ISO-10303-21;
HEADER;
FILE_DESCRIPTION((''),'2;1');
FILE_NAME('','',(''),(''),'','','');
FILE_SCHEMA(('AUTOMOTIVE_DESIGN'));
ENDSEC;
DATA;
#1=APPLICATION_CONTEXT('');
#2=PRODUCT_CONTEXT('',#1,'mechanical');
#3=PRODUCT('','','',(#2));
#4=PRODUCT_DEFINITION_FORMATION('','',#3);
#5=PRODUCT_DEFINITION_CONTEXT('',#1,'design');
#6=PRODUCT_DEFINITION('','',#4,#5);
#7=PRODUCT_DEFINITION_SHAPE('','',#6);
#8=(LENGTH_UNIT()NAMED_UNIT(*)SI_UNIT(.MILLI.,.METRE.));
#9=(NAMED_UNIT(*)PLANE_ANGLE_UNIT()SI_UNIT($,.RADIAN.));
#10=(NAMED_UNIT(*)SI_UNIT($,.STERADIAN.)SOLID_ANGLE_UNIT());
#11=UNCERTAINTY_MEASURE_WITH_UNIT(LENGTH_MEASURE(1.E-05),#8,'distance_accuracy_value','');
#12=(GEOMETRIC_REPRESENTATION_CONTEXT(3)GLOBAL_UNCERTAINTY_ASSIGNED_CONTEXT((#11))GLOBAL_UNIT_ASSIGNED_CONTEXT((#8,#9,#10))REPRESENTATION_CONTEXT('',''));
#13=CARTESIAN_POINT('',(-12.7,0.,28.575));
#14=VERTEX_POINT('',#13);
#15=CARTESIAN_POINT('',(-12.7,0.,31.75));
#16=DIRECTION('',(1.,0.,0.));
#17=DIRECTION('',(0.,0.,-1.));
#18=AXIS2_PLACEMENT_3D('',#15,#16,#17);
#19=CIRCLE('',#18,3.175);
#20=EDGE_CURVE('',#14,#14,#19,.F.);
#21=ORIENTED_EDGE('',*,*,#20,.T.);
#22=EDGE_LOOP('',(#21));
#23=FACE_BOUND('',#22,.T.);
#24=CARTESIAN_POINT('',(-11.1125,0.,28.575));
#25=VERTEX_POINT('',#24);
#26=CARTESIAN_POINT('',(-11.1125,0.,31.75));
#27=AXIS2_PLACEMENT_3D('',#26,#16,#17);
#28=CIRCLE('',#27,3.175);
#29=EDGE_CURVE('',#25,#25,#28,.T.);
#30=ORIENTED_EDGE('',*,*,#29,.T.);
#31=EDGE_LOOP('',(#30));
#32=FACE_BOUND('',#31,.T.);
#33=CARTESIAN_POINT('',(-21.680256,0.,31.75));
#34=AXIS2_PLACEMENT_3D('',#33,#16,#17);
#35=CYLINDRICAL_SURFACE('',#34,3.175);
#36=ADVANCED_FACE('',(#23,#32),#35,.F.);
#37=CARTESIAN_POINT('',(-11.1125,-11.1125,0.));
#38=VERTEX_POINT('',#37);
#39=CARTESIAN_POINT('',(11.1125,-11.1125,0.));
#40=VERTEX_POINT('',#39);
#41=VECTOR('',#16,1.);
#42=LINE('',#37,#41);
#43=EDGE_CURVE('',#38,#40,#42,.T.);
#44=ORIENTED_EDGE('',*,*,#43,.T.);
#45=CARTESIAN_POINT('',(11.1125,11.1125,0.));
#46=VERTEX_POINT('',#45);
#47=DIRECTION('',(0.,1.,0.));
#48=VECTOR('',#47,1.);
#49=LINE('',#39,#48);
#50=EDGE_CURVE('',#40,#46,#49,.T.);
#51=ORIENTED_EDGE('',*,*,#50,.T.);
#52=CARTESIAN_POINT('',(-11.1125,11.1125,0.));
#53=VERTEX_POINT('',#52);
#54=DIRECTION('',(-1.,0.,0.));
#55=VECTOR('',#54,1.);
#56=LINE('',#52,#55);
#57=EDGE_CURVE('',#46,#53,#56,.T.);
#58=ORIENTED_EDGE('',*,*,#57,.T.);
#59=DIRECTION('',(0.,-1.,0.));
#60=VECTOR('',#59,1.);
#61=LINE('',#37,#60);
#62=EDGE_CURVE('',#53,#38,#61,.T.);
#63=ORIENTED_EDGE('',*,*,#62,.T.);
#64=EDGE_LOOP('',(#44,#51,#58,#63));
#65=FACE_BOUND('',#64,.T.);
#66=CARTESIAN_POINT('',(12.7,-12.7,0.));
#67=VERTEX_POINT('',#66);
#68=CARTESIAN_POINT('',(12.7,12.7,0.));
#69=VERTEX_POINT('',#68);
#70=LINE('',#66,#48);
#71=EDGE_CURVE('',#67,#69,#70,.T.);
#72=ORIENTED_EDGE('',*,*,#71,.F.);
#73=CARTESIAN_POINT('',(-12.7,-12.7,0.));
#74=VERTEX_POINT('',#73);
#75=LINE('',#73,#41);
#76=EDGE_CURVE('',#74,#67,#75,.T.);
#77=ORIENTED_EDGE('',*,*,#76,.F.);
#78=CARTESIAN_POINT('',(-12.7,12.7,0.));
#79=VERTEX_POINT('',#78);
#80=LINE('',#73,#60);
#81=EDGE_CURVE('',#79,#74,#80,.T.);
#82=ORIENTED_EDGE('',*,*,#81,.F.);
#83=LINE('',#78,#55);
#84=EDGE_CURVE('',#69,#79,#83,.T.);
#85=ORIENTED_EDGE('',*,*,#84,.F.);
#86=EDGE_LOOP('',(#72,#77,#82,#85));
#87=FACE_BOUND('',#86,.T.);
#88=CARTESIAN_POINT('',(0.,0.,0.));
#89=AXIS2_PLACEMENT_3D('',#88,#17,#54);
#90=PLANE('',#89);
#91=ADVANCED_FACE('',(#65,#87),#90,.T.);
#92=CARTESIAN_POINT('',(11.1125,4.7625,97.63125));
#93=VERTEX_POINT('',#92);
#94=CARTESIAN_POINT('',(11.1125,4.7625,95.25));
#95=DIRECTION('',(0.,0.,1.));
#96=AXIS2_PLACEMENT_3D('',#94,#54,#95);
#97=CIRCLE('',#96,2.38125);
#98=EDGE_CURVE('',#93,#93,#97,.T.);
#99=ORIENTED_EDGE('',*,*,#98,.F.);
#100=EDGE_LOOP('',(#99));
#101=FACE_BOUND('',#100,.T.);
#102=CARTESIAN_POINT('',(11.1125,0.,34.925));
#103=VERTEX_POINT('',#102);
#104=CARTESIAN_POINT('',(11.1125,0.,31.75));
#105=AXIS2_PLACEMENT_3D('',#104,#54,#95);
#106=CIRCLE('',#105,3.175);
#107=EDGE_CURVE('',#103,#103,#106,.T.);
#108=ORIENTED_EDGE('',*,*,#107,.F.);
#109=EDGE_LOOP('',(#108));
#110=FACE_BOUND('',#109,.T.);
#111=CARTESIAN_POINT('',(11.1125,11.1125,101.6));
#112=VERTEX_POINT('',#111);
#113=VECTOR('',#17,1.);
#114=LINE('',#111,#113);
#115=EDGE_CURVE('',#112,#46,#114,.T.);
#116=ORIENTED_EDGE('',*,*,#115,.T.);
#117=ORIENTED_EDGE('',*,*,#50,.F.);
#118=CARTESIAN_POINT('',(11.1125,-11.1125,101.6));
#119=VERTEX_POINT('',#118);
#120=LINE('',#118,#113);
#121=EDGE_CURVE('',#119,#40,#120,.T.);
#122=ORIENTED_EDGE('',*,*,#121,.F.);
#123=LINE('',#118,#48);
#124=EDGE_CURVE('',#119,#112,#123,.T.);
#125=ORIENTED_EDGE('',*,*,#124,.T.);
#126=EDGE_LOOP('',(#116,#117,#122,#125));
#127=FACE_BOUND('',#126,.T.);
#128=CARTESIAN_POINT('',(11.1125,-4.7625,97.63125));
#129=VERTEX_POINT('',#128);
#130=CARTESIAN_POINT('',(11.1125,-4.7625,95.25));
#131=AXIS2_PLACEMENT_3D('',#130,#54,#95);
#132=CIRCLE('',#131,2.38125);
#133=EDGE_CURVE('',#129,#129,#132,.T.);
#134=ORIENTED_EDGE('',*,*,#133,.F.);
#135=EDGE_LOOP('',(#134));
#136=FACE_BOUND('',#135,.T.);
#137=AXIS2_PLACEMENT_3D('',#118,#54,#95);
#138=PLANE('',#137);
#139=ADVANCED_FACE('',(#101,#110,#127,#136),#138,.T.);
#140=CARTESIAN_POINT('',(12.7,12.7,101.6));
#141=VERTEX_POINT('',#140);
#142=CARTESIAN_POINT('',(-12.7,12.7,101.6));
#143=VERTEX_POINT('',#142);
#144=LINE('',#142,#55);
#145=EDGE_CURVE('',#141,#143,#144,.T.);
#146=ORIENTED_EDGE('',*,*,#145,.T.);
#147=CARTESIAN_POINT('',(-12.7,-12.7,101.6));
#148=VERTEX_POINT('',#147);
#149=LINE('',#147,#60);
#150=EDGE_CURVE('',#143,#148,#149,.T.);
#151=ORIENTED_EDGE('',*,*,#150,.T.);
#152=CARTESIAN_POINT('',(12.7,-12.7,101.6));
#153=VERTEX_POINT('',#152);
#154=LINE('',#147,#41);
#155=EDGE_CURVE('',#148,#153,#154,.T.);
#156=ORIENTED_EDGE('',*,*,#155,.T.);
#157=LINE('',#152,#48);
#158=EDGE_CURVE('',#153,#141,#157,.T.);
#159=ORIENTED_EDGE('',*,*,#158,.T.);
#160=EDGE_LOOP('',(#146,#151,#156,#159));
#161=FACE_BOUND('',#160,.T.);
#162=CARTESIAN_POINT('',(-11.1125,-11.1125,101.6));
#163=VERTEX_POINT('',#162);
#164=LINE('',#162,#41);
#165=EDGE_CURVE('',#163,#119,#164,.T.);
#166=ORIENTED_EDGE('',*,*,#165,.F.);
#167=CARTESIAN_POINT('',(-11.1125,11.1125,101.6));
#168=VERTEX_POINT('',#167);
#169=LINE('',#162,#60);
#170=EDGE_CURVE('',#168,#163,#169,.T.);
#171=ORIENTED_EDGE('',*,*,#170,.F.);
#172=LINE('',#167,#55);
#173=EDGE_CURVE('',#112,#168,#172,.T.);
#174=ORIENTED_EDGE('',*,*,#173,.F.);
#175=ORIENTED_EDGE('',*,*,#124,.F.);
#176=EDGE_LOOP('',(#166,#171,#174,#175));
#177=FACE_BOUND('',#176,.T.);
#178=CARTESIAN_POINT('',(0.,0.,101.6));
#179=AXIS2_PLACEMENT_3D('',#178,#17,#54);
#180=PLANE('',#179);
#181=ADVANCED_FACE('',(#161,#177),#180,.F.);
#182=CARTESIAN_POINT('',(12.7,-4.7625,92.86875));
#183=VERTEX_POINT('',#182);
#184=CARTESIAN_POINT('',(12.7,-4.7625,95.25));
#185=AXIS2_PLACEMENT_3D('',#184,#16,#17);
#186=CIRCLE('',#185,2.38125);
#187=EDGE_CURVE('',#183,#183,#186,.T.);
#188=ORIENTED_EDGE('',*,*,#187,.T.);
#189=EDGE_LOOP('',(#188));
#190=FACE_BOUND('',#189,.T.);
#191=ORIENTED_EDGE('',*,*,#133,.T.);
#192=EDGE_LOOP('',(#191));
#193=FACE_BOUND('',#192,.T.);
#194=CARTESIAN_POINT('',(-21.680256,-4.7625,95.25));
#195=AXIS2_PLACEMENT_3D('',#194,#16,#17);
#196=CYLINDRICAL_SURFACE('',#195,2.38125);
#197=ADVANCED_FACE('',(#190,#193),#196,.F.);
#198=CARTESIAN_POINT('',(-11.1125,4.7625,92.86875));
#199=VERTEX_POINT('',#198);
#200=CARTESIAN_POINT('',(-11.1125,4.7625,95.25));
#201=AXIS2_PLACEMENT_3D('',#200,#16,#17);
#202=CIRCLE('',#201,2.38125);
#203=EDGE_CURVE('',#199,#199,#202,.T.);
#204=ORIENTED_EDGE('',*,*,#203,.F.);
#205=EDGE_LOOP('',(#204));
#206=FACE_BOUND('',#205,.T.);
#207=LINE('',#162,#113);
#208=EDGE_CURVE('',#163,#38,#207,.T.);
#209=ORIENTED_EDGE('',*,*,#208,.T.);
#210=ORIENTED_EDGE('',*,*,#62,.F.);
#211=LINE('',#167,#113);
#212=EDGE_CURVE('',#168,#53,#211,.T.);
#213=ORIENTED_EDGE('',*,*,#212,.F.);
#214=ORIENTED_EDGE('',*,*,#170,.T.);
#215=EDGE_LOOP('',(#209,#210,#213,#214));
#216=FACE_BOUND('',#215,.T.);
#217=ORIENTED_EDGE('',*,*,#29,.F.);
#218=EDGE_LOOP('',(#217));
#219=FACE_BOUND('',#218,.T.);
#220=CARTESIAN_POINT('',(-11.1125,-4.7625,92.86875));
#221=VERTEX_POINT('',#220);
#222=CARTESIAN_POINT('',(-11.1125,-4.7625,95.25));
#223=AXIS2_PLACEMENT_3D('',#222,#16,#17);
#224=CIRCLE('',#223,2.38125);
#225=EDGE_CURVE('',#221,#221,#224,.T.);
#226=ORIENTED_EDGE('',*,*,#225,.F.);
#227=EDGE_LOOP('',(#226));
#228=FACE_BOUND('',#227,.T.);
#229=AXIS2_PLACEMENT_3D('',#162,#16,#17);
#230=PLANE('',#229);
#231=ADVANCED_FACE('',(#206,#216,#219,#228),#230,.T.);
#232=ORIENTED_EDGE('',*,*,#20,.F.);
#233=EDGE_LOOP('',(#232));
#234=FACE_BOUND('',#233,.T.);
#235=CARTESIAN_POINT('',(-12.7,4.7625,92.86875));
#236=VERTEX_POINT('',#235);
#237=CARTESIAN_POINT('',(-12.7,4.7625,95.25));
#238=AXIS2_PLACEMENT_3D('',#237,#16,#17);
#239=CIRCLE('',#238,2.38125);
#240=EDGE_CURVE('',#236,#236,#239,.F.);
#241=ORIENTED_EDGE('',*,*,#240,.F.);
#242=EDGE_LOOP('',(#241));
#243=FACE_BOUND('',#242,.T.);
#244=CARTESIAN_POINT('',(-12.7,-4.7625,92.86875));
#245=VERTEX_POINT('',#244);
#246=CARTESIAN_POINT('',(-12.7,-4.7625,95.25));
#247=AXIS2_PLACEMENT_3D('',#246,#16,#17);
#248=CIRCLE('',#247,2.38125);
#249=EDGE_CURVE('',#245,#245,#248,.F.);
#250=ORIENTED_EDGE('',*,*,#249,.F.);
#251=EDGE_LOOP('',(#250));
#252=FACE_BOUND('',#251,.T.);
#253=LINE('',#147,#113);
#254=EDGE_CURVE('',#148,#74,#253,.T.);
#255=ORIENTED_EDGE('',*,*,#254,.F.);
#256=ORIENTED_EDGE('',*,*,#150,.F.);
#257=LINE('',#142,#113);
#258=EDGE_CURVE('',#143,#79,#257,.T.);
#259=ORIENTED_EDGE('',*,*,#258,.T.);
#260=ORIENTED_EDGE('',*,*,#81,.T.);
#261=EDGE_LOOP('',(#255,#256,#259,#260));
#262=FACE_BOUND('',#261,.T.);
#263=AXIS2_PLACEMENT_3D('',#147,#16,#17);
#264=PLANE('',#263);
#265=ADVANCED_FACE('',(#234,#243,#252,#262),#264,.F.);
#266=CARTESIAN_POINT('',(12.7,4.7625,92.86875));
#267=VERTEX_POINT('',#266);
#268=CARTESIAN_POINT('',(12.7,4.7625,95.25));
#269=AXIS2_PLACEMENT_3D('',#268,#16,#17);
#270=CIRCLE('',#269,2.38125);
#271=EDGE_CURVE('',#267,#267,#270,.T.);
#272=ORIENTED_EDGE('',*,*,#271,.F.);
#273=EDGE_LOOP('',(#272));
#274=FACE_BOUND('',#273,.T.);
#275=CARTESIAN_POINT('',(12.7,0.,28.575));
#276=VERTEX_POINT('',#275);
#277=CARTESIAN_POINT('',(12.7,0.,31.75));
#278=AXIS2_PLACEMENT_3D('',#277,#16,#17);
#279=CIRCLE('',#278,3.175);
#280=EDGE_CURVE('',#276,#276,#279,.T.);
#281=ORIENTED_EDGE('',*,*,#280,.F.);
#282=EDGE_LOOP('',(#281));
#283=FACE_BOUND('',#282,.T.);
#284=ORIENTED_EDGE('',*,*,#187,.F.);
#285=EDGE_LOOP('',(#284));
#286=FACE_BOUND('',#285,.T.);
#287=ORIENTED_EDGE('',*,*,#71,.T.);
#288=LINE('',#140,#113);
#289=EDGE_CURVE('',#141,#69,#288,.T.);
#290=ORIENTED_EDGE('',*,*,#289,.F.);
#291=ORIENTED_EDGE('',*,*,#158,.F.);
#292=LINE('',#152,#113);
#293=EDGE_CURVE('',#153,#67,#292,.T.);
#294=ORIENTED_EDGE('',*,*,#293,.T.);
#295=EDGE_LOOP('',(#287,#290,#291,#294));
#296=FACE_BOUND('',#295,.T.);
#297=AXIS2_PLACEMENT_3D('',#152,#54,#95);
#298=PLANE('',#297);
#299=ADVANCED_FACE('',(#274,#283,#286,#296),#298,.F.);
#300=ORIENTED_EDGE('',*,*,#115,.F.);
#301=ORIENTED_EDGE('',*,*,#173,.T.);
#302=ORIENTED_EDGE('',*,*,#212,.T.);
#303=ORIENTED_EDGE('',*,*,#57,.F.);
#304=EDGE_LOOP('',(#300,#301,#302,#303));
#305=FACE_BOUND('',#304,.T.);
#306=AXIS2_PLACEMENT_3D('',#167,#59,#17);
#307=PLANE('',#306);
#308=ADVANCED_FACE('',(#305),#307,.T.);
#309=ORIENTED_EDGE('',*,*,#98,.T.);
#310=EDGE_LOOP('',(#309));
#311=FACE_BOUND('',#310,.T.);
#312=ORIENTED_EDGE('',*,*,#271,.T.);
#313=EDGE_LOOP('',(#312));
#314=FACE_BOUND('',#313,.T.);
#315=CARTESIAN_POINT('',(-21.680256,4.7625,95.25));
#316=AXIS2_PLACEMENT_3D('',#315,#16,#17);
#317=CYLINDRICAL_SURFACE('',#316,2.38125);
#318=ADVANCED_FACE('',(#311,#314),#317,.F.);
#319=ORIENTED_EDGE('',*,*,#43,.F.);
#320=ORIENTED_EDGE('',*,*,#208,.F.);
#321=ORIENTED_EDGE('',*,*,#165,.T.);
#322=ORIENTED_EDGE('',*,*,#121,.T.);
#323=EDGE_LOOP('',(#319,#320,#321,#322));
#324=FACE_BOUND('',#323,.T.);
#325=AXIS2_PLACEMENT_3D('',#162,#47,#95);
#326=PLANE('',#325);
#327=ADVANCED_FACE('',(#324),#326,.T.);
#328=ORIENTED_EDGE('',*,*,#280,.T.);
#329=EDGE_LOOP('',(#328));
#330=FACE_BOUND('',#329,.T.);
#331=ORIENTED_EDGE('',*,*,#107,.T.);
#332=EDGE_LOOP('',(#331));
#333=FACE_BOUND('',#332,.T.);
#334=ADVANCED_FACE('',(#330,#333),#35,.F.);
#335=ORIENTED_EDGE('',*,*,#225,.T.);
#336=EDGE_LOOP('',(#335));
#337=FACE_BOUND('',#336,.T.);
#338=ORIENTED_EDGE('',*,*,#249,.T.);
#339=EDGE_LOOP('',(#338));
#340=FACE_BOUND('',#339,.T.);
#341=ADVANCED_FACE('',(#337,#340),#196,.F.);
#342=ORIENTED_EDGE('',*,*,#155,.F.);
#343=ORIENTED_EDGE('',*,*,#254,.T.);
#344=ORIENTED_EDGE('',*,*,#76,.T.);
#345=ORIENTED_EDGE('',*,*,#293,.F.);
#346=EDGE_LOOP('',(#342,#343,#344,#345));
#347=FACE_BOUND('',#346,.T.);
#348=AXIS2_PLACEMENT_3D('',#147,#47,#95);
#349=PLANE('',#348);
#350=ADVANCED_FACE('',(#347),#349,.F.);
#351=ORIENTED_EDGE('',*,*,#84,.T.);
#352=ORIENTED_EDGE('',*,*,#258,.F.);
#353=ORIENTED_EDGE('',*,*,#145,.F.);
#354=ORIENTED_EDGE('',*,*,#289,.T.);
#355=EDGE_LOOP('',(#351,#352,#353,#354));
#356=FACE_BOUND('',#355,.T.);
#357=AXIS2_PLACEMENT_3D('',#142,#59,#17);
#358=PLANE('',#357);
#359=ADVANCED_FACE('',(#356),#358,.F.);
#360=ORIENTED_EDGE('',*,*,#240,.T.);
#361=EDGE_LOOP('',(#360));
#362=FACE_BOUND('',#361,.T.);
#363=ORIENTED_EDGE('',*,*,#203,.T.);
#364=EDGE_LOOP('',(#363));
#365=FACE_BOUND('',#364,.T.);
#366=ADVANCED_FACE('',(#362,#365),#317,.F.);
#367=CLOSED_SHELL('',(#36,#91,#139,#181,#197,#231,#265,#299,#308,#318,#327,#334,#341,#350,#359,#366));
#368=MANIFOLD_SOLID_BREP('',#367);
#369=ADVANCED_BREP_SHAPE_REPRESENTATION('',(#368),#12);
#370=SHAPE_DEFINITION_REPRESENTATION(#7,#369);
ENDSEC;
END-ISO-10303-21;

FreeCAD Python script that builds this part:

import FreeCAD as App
import Part
import Sketcher
from FreeCAD import Vector
Q = App.Units.Quantity

doc = App.newDocument("Part")
body = doc.addObject("PartDesign::Body", "Body")

# Sketch on XY plane
sketch1 = body.newObject("Sketcher::SketchObject", "Sketch")
sketch1.AttachmentSupport = (doc.getObject("XY_Plane"), [""])
sketch1.MapMode = "FlatFace"
sketch1.addGeometry([
    Part.LineSegment(Vector(-13, 13, 0), Vector(-13, -13, 0)),  # 0
    Part.LineSegment(Vector(-13, -13, 0), Vector(13, -13, 0)),  # 1
    Part.LineSegment(Vector(13, -13, 0), Vector(13, 13, 0)),  # 2
    Part.LineSegment(Vector(13, 13, 0), Vector(-13, 13, 0)),  # 3
    Part.LineSegment(Vector(11, -11, 0), Vector(-11, -11, 0)),  # 4
    Part.LineSegment(Vector(-11, -11, 0), Vector(-11, 11, 0)),  # 5
    Part.LineSegment(Vector(-11, 11, 0), Vector(11, 11, 0)),  # 6
    Part.LineSegment(Vector(11, 11, 0), Vector(11, -11, 0)),  # 7
], False)
sketch1.addConstraint([
    Sketcher.Constraint("Coincident", 0, 2, 1, 1),
    Sketcher.Constraint("Coincident", 1, 2, 2, 1),
    Sketcher.Constraint("Coincident", 2, 2, 3, 1),
    Sketcher.Constraint("Coincident", 3, 2, 0, 1),
    Sketcher.Constraint("Coincident", 4, 2, 5, 1),
    Sketcher.Constraint("Coincident", 5, 2, 6, 1),
    Sketcher.Constraint("Coincident", 6, 2, 7, 1),
    Sketcher.Constraint("Coincident", 7, 2, 4, 1),
    Sketcher.Constraint("Vertical", 0),
    Sketcher.Constraint("Horizontal", 1),
    Sketcher.Constraint("Vertical", 2),
    Sketcher.Constraint("Horizontal", 3),
    Sketcher.Constraint("Horizontal", 4),
    Sketcher.Constraint("Vertical", 5),
    Sketcher.Constraint("Horizontal", 6),
    Sketcher.Constraint("Vertical", 7),
    Sketcher.Constraint("Symmetric", 0, 2, 2, 2, -1, 1),
    Sketcher.Constraint("Symmetric", 4, 2, 6, 2, -1, 1),
    Sketcher.Constraint("Equal", 3, 0),
    Sketcher.Constraint("Equal", 6, 5),
    Sketcher.Constraint("DistanceX", 1, 1, 1, 2, Q("1 in")),
    Sketcher.Constraint("DistanceX", 4, 2, 4, 1, Q("0.875 in")),
])
pad1 = body.newObject("PartDesign::Pad", "Pad")
pad1.Profile = sketch1
pad1.Length = Q("4 in")

# Sketch on YZ plane
sketch2 = body.newObject("Sketcher::SketchObject", "Sketch001")
sketch2.AttachmentSupport = (doc.getObject("YZ_Plane"), [""])
sketch2.MapMode = "FlatFace"
sketch2.AttachmentOffset = App.Placement(Vector(0, 0, 0.5 * 25.4), App.Rotation())
sketch2.addGeometry([
    Part.Circle(Vector(4.8, 95.2, 0), Vector(0, 0, 1), 2.4),
    Part.Circle(Vector(-4.8, 95.2, 0), Vector(0, 0, 1), 2.4),
    Part.Circle(Vector(0, 31.8, 0), Vector(0, 0, 1), 3.2),
], False)
sketch2.addConstraint([
    Sketcher.Constraint("Equal", 0, 1),
    Sketcher.Constraint("Symmetric", 0, 3, 1, 3, -2),
    Sketcher.Constraint("PointOnObject", 2, 3, -2),
    Sketcher.Constraint("Diameter", 2, Q("0.25 in")),
    Sketcher.Constraint("Diameter", 0, Q("0.1875 in")),
    Sketcher.Constraint("DistanceY", 2, 3, 0, 3, Q("2.5 in")),
    Sketcher.Constraint("DistanceY", -1, 1, 0, 3, Q("3.75 in")),
    Sketcher.Constraint("DistanceX", -1, 1, 0, 3, Q("0.1875 in")),
])
pocket1 = body.newObject("PartDesign::Pocket", "Pocket")
pocket1.Profile = sketch2
pocket1.Length = Q("1 in")

doc.recompute()
